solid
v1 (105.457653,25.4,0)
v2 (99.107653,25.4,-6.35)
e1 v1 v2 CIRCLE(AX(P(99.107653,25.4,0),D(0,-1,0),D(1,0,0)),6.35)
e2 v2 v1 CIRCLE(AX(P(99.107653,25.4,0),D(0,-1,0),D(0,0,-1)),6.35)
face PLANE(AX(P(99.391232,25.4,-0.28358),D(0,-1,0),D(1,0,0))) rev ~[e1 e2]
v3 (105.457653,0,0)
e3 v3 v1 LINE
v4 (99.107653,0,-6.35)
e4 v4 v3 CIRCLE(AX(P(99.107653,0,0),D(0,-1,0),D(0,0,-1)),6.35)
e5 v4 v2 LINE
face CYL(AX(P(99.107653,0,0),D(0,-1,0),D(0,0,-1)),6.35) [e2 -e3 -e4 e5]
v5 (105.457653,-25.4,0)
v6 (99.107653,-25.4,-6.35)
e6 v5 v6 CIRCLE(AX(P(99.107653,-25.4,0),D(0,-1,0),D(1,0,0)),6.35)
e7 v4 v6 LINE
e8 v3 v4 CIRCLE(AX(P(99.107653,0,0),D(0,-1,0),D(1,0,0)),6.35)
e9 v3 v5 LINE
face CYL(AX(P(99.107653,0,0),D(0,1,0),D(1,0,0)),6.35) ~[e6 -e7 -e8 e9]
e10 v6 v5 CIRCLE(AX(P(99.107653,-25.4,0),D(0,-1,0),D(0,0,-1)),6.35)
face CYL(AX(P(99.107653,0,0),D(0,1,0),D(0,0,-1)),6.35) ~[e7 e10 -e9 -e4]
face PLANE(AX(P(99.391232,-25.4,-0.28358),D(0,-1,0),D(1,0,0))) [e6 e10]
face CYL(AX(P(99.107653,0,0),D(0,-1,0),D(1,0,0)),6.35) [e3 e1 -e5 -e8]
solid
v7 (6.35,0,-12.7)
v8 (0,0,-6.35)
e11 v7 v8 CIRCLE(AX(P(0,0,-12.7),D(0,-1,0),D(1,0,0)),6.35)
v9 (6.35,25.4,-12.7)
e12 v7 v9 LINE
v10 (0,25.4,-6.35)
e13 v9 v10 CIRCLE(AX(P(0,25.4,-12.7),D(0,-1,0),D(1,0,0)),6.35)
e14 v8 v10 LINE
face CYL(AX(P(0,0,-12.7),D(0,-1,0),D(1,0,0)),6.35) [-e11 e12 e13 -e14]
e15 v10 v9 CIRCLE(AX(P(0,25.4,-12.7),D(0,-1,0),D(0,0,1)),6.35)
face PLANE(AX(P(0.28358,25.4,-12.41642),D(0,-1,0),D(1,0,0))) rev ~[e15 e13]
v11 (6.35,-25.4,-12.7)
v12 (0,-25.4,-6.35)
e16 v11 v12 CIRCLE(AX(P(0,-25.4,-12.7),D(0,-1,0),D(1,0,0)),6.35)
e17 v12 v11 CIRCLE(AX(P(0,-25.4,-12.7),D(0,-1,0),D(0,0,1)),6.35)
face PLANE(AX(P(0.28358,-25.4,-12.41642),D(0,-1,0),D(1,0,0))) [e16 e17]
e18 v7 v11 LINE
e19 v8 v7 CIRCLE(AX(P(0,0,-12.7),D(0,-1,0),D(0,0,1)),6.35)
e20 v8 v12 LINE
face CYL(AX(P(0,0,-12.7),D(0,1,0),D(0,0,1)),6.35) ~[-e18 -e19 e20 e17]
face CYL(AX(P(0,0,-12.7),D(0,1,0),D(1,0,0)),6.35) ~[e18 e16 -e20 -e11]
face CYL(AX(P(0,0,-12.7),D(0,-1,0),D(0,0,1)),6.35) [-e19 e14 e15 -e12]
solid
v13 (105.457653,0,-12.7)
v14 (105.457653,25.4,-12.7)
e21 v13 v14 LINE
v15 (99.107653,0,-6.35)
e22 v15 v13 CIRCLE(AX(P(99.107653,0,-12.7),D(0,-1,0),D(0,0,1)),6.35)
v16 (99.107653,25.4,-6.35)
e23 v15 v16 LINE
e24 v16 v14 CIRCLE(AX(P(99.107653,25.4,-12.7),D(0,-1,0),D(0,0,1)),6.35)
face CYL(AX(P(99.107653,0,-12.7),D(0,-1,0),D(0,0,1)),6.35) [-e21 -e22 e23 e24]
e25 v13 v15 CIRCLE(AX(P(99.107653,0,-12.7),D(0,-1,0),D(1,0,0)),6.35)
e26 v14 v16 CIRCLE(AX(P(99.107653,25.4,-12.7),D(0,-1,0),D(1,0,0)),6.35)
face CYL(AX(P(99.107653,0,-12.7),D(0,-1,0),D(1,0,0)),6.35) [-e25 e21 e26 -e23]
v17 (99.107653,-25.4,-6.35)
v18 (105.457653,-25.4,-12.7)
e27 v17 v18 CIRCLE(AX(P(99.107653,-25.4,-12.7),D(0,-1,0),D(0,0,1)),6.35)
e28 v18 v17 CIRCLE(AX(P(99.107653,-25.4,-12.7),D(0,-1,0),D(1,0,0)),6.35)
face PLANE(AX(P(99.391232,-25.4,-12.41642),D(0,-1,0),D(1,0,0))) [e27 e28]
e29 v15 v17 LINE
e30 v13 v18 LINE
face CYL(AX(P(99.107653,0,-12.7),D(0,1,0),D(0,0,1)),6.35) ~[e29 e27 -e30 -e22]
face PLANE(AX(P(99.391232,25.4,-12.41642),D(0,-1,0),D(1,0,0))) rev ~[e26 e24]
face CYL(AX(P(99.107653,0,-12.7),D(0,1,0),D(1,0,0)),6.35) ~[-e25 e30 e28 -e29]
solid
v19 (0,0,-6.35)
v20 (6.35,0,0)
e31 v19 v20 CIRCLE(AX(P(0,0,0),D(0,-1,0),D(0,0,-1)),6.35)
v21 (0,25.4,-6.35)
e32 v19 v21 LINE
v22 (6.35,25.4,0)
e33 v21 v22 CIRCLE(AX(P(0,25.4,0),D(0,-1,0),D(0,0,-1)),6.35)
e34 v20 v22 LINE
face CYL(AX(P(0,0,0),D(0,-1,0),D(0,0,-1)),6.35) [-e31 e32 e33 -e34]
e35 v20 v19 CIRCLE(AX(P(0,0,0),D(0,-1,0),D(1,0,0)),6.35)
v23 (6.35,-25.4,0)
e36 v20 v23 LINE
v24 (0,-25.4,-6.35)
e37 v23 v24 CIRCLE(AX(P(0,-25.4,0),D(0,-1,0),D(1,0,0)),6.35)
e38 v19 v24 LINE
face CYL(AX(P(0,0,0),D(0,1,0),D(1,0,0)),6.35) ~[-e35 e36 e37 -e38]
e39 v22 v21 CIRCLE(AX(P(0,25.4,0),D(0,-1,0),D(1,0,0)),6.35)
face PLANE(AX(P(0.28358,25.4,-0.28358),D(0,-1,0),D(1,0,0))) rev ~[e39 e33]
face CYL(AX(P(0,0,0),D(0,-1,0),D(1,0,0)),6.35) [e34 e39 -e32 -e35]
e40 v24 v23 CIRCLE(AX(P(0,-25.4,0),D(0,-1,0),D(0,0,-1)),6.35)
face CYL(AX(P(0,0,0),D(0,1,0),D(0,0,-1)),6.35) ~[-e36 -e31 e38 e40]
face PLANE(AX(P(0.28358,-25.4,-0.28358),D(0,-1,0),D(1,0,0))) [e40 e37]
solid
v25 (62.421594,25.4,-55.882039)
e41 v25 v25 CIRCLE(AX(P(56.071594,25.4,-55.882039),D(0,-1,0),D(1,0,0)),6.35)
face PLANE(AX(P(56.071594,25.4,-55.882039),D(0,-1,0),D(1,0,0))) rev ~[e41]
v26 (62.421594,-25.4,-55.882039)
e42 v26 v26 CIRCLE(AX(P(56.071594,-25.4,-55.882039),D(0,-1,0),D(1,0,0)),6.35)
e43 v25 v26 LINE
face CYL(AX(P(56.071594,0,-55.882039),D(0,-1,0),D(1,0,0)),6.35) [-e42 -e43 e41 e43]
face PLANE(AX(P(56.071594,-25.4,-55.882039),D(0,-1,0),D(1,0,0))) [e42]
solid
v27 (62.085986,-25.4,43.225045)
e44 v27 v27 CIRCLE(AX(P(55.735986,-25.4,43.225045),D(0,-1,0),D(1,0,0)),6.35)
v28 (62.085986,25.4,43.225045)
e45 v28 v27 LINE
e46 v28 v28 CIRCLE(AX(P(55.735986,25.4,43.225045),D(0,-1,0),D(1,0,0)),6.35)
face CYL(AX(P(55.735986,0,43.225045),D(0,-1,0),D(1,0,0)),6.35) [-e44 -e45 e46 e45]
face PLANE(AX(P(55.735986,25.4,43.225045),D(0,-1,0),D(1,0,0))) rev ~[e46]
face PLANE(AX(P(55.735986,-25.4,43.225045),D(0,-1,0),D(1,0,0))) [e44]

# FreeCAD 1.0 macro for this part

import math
import FreeCAD as App
import Part
import Sketcher

V = App.Vector
Q = App.Units.Quantity

doc = App.newDocument("Part")
params = doc.addObject("Spreadsheet::Sheet", "Params")
for row, (alias, value) in enumerate([
    ("sketch1_radius", "0.25 in"),
    ("pad1_length", "2 in"),
    ("sketch2_radius", "0.25 in"),
    ("pad2_length", "2 in"),
    ("sketch3_diameter", "0.5 in"),
    ("pad3_length", "2 in"),
    ("sketch4_radius", "0.25 in"),
    ("pad4_length", "2 in"),
    ("sketch5_radius", "0.25 in"),
    ("pad5_length", "2 in"),
    ("sketch6_diameter", "0.5 in"),
    ("pad6_length", "2 in"),
], start=1):
    params.set(f"A{row}", alias)
    params.set(f"B{row}", "=" + value)
    params.setAlias(f"B{row}", alias)

body = doc.addObject("PartDesign::Body", "Body")

sketch1 = body.newObject("Sketcher::SketchObject", "Sketch")
sketch1.AttachmentSupport = (doc.getObject("XZ_Plane"), [""])
sketch1.MapMode = "FlatFace"
sketch1.addGeometry([
    Part.ArcOfCircle(Part.Circle(V(0, 0, 0), V(0, 0, 1), 6.35), math.radians(-90), math.radians(0)),
    Part.ArcOfCircle(Part.Circle(V(0, 0, 0), V(0, 0, 1), 6.35), math.radians(0), math.radians(270)),
], False)
sketch1.addConstraint([
    Sketcher.Constraint("Tangent", 0, 1, 1, 2),
    Sketcher.Constraint("Coincident", 1, 1, 0, 2),
    Sketcher.Constraint("Coincident", 0, 3, -1, 1),
    Sketcher.Constraint("PointOnObject", 0, 1, -2),
    Sketcher.Constraint("PointOnObject", 1, 1, -1),
    Sketcher.Constraint("Radius", 0, Q("0.25 in")),
])
sketch1.setExpression("Constraints[5]", "Params.sketch1_radius")
pad1 = body.newObject("PartDesign::Pad", "Pad")
pad1.Profile = sketch1
pad1.setExpression("Length", "Params.pad1_length")
pad1.Midplane = True
body2 = doc.addObject("PartDesign::Body", "Body001")

sketch2 = body2.newObject("Sketcher::SketchObject", "Sketch001")
sketch2.AttachmentSupport = (doc.getObject("XZ_Plane001"), [""])
sketch2.MapMode = "FlatFace"
sketch2.addGeometry([
    Part.ArcOfCircle(Part.Circle(V(0, -12.7, 0), V(0, 0, 1), 6.35), math.radians(0), math.radians(90)),
    Part.ArcOfCircle(Part.Circle(V(0, -12.7, 0), V(0, 0, 1), 6.35), math.radians(90), math.radians(360)),
], False)
sketch2.addConstraint([
    Sketcher.Constraint("Tangent", 0, 1, 1, 2),
    Sketcher.Constraint("Coincident", 1, 1, 0, 2),
    Sketcher.Constraint("PointOnObject", 0, 3, -2),
    Sketcher.Constraint("PointOnObject", 1, 1, -2),
    Sketcher.Constraint("Horizontal", 1, 3, 0, 1),
    Sketcher.Constraint("Radius", 0, Q("0.25 in")),
    Sketcher.Constraint("DistanceY", 0, 3, -1, 1, Q("0.5 in")),
])
sketch2.setExpression("Constraints[5]", "Params.sketch2_radius")
pad2 = body2.newObject("PartDesign::Pad", "Pad001")
pad2.Profile = sketch2
pad2.setExpression("Length", "Params.pad2_length")
pad2.Midplane = True
body3 = doc.addObject("PartDesign::Body", "Body002")

sketch3 = body3.newObject("Sketcher::SketchObject", "Sketch002")
sketch3.AttachmentSupport = (doc.getObject("XZ_Plane002"), [""])
sketch3.MapMode = "FlatFace"
sketch3.addGeometry(Part.Circle(V(56.071594, -55.882039, 0), V(0, 0, 1), 6.35), False)
sketch3.addConstraint([
    Sketcher.Constraint("Diameter", 0, Q("0.5 in")),
    Sketcher.Constraint("DistanceY", 0, 3, -1, 1, Q("55.882039 mm")),
    Sketcher.Constraint("DistanceX", -1, 1, 0, 3, Q("56.071594 mm")),
])
sketch3.setExpression("Constraints[0]", "Params.sketch3_diameter")
pad3 = body3.newObject("PartDesign::Pad", "Pad002")
pad3.Profile = sketch3
pad3.setExpression("Length", "Params.pad3_length")
pad3.Midplane = True
body4 = doc.addObject("PartDesign::Body", "Body003")

sketch4 = body4.newObject("Sketcher::SketchObject", "Sketch003")
sketch4.AttachmentSupport = (doc.getObject("XZ_Plane003"), [""])
sketch4.MapMode = "FlatFace"
sketch4.addGeometry([
    Part.ArcOfCircle(Part.Circle(V(99.107653, -12.7, 0), V(0, 0, 1), 6.35), math.radians(90), math.radians(360)),
    Part.ArcOfCircle(Part.Circle(V(99.107653, -12.7, 0), V(0, 0, 1), 6.35), math.radians(0), math.radians(90)),
], False)
sketch4.addConstraint([
    Sketcher.Constraint("Tangent", 0, 1, 1, 2),
    Sketcher.Constraint("Coincident", 1, 1, 0, 2),
    Sketcher.Constraint("Horizontal", 0, 3, 1, 1),
    Sketcher.Constraint("Vertical", 1, 3, 0, 1),
    Sketcher.Constraint("Radius", 0, Q("0.25 in")),
    Sketcher.Constraint("DistanceY", 0, 3, -1, 1, Q("0.5 in")),
    Sketcher.Constraint("DistanceX", -1, 1, 0, 3, Q("99.107653 mm")),
])
sketch4.setExpression("Constraints[4]", "Params.sketch4_radius")
pad4 = body4.newObject("PartDesign::Pad", "Pad003")
pad4.Profile = sketch4
pad4.setExpression("Length", "Params.pad4_length")
pad4.Midplane = True
body5 = doc.addObject("PartDesign::Body", "Body004")

sketch5 = body5.newObject("Sketcher::SketchObject", "Sketch004")
sketch5.AttachmentSupport = (doc.getObject("XZ_Plane004"), [""])
sketch5.MapMode = "FlatFace"
sketch5.addGeometry([
    Part.ArcOfCircle(Part.Circle(V(99.107653, 0, 0), V(0, 0, 1), 6.35), math.radians(0), math.radians(270)),
    Part.ArcOfCircle(Part.Circle(V(99.107653, 0, 0), V(0, 0, 1), 6.35), math.radians(-90), math.radians(0)),
], False)
sketch5.addConstraint([
    Sketcher.Constraint("Tangent", 0, 1, 1, 2),
    Sketcher.Constraint("Coincident", 1, 1, 0, 2),
    Sketcher.Constraint("PointOnObject", 0, 3, -1),
    Sketcher.Constraint("PointOnObject", 0, 1, -1),
    Sketcher.Constraint("Vertical", 0, 3, 1, 1),
    Sketcher.Constraint("Radius", 0, Q("0.25 in")),
    Sketcher.Constraint("DistanceX", -1, 1, 0, 3, Q("99.107653 mm")),
])
sketch5.setExpression("Constraints[5]", "Params.sketch5_radius")
pad5 = body5.newObject("PartDesign::Pad", "Pad004")
pad5.Profile = sketch5
pad5.setExpression("Length", "Params.pad5_length")
pad5.Midplane = True
body6 = doc.addObject("PartDesign::Body", "Body005")

sketch6 = body6.newObject("Sketcher::SketchObject", "Sketch005")
sketch6.AttachmentSupport = (doc.getObject("XZ_Plane005"), [""])
sketch6.MapMode = "FlatFace"
sketch6.addGeometry(Part.Circle(V(55.735986, 43.225045, 0), V(0, 0, 1), 6.35), False)
sketch6.addConstraint([
    Sketcher.Constraint("Diameter", 0, Q("0.5 in")),
    Sketcher.Constraint("DistanceX", -1, 1, 0, 3, Q("55.735986 mm")),
    Sketcher.Constraint("DistanceY", -1, 1, 0, 3, Q("43.225045 mm")),
])
sketch6.setExpression("Constraints[0]", "Params.sketch6_diameter")
pad6 = body6.newObject("PartDesign::Pad", "Pad005")
pad6.Profile = sketch6
pad6.setExpression("Length", "Params.pad6_length")
pad6.Midplane = True

doc.recompute()
